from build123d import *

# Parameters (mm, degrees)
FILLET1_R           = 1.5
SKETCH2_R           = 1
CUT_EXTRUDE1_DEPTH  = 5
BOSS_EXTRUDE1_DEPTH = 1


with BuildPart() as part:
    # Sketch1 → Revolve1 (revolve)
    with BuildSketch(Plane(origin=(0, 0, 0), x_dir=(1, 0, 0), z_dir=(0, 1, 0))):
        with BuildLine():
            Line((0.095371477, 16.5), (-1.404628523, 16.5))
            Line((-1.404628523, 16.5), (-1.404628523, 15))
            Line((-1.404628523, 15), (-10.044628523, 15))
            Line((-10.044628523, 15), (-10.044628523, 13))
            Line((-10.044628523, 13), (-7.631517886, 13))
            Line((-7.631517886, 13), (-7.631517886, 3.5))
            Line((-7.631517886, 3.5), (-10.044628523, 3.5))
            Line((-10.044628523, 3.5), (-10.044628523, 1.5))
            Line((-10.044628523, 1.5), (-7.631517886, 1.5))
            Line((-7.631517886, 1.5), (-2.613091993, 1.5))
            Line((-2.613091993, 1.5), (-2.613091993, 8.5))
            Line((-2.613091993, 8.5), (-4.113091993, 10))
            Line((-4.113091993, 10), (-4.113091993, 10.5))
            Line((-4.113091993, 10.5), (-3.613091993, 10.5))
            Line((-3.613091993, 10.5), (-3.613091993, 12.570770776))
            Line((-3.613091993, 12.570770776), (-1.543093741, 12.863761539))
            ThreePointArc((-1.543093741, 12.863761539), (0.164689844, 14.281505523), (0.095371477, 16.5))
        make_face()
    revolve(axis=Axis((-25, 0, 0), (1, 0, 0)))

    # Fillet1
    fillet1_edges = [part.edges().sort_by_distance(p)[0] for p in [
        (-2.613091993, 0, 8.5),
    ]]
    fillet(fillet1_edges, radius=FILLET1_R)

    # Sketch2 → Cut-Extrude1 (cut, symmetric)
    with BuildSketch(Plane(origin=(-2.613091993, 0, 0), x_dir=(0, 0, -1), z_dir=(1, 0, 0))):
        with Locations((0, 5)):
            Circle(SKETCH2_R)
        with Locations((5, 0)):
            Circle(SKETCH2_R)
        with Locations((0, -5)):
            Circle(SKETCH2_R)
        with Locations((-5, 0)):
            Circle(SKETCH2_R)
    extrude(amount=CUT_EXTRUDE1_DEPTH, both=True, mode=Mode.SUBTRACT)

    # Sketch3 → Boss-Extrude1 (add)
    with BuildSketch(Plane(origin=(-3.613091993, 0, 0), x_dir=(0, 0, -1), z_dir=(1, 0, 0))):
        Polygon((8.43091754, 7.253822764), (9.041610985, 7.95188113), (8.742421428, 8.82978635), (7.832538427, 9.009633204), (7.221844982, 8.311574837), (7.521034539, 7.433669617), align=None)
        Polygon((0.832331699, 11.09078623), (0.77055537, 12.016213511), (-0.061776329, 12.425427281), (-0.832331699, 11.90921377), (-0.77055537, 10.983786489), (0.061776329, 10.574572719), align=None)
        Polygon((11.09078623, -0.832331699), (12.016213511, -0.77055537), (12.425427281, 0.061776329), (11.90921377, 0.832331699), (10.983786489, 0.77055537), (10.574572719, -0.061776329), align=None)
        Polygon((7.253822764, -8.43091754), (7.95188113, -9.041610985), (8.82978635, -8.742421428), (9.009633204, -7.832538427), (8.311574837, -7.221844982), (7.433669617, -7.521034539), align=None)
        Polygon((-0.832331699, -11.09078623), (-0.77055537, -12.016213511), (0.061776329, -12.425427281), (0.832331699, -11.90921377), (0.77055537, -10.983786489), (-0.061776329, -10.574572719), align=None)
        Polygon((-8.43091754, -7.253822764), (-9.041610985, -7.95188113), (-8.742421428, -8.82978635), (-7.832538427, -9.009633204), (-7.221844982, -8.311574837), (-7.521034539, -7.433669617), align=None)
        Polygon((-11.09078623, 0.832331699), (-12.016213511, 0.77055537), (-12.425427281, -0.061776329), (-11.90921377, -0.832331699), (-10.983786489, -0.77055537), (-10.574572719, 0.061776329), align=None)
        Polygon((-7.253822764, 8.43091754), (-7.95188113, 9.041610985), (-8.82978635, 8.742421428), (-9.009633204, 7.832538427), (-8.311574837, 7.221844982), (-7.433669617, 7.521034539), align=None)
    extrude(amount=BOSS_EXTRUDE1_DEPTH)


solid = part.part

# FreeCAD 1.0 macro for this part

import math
import FreeCAD as App
import Part
import Sketcher

V = App.Vector
Q = App.Units.Quantity


def edges_at(feature, points):
    """Names of the edges that pass closest to the given points."""
    edges = feature.Shape.Edges
    near = lambda p: min(range(len(edges)), key=lambda i: edges[i].distToShape(Part.Vertex(*p))[0])
    return sorted({f"Edge{near(p) + 1}" for p in points})

doc = App.newDocument("Part")
body = doc.addObject("PartDesign::Body", "Body")

sketch1 = doc.addObject("Sketcher::SketchObject", "Sketch")
body.addObject(sketch1)
sketch1.AttachmentSupport = (doc.XZ_Plane, [""])
sketch1.MapMode = "FlatFace"
sketch1.addGeometry(Part.LineSegment(V(0.1, -16.5, 0), V(-1.4, -16.5, 0)), False)
sketch1.addGeometry(Part.LineSegment(V(-1.4, -16.5, 0), V(-1.4, -15, 0)), False)
sketch1.addGeometry(Part.LineSegment(V(-1.4, -15, 0), V(-10, -15, 0)), False)
sketch1.addGeometry(Part.LineSegment(V(-10, -15, 0), V(-10, -13, 0)), False)
sketch1.addGeometry(Part.LineSegment(V(-10, -13, 0), V(-7.6, -13, 0)), False)
sketch1.addGeometry(Part.LineSegment(V(-7.6, -13, 0), V(-7.6, -3.5, 0)), False)
sketch1.addGeometry(Part.LineSegment(V(-7.6, -3.5, 0), V(-10, -3.5, 0)), False)
sketch1.addGeometry(Part.LineSegment(V(-10, -3.5, 0), V(-10, -1.5, 0)), False)
sketch1.addGeometry(Part.LineSegment(V(-10, -1.5, 0), V(-2.6, -1.5, 0)), False)
sketch1.addGeometry(Part.LineSegment(V(-2.6, -1.5, 0), V(-2.6, -8.5, 0)), False)
sketch1.addGeometry(Part.LineSegment(V(-2.6, -8.5, 0), V(-4.1, -10, 0)), False)
sketch1.addGeometry(Part.LineSegment(V(-4.1, -10, 0), V(-4.1, -10.5, 0)), False)
sketch1.addGeometry(Part.LineSegment(V(-4.1, -10.5, 0), V(-3.6, -10.5, 0)), False)
sketch1.addGeometry(Part.LineSegment(V(-3.6, -10.5, 0), V(-3.6, -12.6, 0)), False)
sketch1.addGeometry(Part.LineSegment(V(-3.6, -12.6, 0), V(-1.5, -12.9, 0)), False)
sketch1.addGeometry(Part.ArcOfCircle(Part.Circle(V(-2.1, -15.3, 0), V(0, 0, 1), 2.5), math.radians(-28), math.radians(76)), False)
sketch1.addConstraint(Sketcher.Constraint("Coincident", 0, 2, 1, 1))
sketch1.addConstraint(Sketcher.Constraint("Coincident", 1, 2, 2, 1))
sketch1.addConstraint(Sketcher.Constraint("Coincident", 2, 2, 3, 1))
sketch1.addConstraint(Sketcher.Constraint("Coincident", 3, 2, 4, 1))
sketch1.addConstraint(Sketcher.Constraint("Coincident", 4, 2, 5, 1))
sketch1.addConstraint(Sketcher.Constraint("Coincident", 5, 2, 6, 1))
sketch1.addConstraint(Sketcher.Constraint("Coincident", 6, 2, 7, 1))
sketch1.addConstraint(Sketcher.Constraint("Coincident", 7, 2, 8, 1))
sketch1.addConstraint(Sketcher.Constraint("Coincident", 8, 2, 9, 1))
sketch1.addConstraint(Sketcher.Constraint("Coincident", 9, 2, 10, 1))
sketch1.addConstraint(Sketcher.Constraint("Coincident", 10, 2, 11, 1))
sketch1.addConstraint(Sketcher.Constraint("Coincident", 11, 2, 12, 1))
sketch1.addConstraint(Sketcher.Constraint("Coincident", 12, 2, 13, 1))
sketch1.addConstraint(Sketcher.Constraint("Coincident", 13, 2, 14, 1))
sketch1.addConstraint(Sketcher.Constraint("Coincident", 14, 2, 15, 2))
sketch1.addConstraint(Sketcher.Constraint("Coincident", 15, 1, 0, 1))
sketch1.addConstraint(Sketcher.Constraint("Horizontal", 0))
sketch1.addConstraint(Sketcher.Constraint("Vertical", 1))
sketch1.addConstraint(Sketcher.Constraint("Horizontal", 2))
sketch1.addConstraint(Sketcher.Constraint("Vertical", 3))
sketch1.addConstraint(Sketcher.Constraint("Horizontal", 4))
sketch1.addConstraint(Sketcher.Constraint("Vertical", 5))
sketch1.addConstraint(Sketcher.Constraint("Horizontal", 6))
sketch1.addConstraint(Sketcher.Constraint("Vertical", 7))
sketch1.addConstraint(Sketcher.Constraint("Horizontal", 8))
sketch1.addConstraint(Sketcher.Constraint("Vertical", 9))
sketch1.addConstraint(Sketcher.Constraint("Vertical", 11))
sketch1.addConstraint(Sketcher.Constraint("Horizontal", 12))
sketch1.addConstraint(Sketcher.Constraint("Vertical", 13))
sketch1.addConstraint(Sketcher.Constraint("Vertical", 3, 2, 6, 2))
sketch1.addConstraint(Sketcher.Constraint("Equal", 0, 1))
sketch1.addConstraint(Sketcher.Constraint("Equal", 3, 7))
sketch1.addConstraint(Sketcher.Constraint("Equal", 12, 11))
sketch1.addConstraint(Sketcher.Constraint("DistanceY", 3, 1, 3, 2, 2.0))
sketch1.addConstraint(Sketcher.Constraint("DistanceY", 9, 2, 9, 1, 7.0))
sketch1.addConstraint(Sketcher.Constraint("Angle", 10, Q("-135 deg")))
sketch1.addConstraint(Sketcher.Constraint("DistanceX", 0, 2, 0, 1, 1.5))
sketch1.addConstraint(Sketcher.Constraint("DistanceX", 12, 1, 12, 2, 0.5))
sketch1.addConstraint(Sketcher.Constraint("DistanceY", 5, 1, 5, 2, 9.5))
sketch1.addConstraint(Sketcher.Constraint("DistanceY", 1, 2, -1, 1, 15.0))
sketch1.addConstraint(Sketcher.Constraint("DistanceY", 10, 2, -1, 1, 10.0))
sketch1.addConstraint(Sketcher.Constraint("DistanceX", 2, 2, 2, 1, 8.64))
sketch1.addConstraint(Sketcher.Constraint("Radius", 15, 2.527488))
sketch1.addConstraint(Sketcher.Constraint("DistanceX", 13, 2, 14, 2, 2.069998))
sketch1.addConstraint(Sketcher.Constraint("DistanceX", 4, 1, 4, 2, 2.413111))
sketch1.addConstraint(Sketcher.Constraint("DistanceY", 13, 2, 13, 1, 2.070771))
sketch1.addConstraint(Sketcher.Constraint("Distance", 14, 2.090631))
sketch1.addConstraint(Sketcher.Constraint("DistanceX", 8, 1, 8, 2, 7.431537))
sketch1.addConstraint(Sketcher.Constraint("DistanceX", 15, 3, -1, 1, 2.139669))
revolution = doc.addObject("PartDesign::Revolution", "Revolution")
body.addObject(revolution)
revolution.Profile = sketch1
revolution.ReferenceAxis = (sketch1, ["H_Axis"])
revolution.Angle = 360
doc.recompute()

fillet = doc.addObject("PartDesign::Fillet", "Fillet")
body.addObject(fillet)
fillet.Base = (revolution, edges_at(revolution, [(-2.613, 0, 8.5)]))
fillet.Radius = 1.5

sketch2 = doc.addObject("Sketcher::SketchObject", "Sketch001")
body.addObject(sketch2)
sketch2.AttachmentSupport = (doc.YZ_Plane, [""])
sketch2.MapMode = "FlatFace"
sketch2.AttachmentOffset = App.Placement(V(0, 0, -2.613092), App.Rotation())
sketch2.addGeometry(Part.Circle(V(5, 0, 0), V(0, 0, 1), 1), False)
sketch2.addGeometry(Part.Circle(V(0, -5, 0), V(0, 0, 1), 1), False)
sketch2.addGeometry(Part.Circle(V(-5, 0, 0), V(0, 0, 1), 1), False)
sketch2.addGeometry(Part.Circle(V(0, 5, 0), V(0, 0, 1), 1), False)
sketch2.addConstraint(Sketcher.Constraint("Equal", 0, 1))
sketch2.addConstraint(Sketcher.Constraint("Equal", 1, 2))
sketch2.addConstraint(Sketcher.Constraint("Equal", 2, 3))
sketch2.addConstraint(Sketcher.Constraint("Symmetric", 0, 3, 2, 3, -1, 1))
sketch2.addConstraint(Sketcher.Constraint("Symmetric", 1, 3, 3, 3, -1, 1))
sketch2.addConstraint(Sketcher.Constraint("PointOnObject", 0, 3, -1))
sketch2.addConstraint(Sketcher.Constraint("PointOnObject", 1, 3, -2))
sketch2.addConstraint(Sketcher.Constraint("Diameter", 0, 2.0))
sketch2.addConstraint(Sketcher.Constraint("DistanceX", -1, 1, 0, 3, 5.0))
sketch2.addConstraint(Sketcher.Constraint("DistanceY", 1, 3, -1, 1, 5.0))
pocket1 = doc.addObject("PartDesign::Pocket", "Pocket")
body.addObject(pocket1)
pocket1.Profile = sketch2
pocket1.Length = 10
pocket1.Midplane = True

sketch3 = doc.addObject("Sketcher::SketchObject", "Sketch002")
body.addObject(sketch3)
sketch3.AttachmentSupport = (doc.YZ_Plane, [""])
sketch3.MapMode = "FlatFace"
sketch3.AttachmentOffset = App.Placement(V(0, 0, -3.613092), App.Rotation())
sketch3.addGeometry(Part.LineSegment(V(7.3, -8.4, 0), V(8, -9, 0)), False)
sketch3.addGeometry(Part.LineSegment(V(8, -9, 0), V(8.8, -8.7, 0)), False)
sketch3.addGeometry(Part.LineSegment(V(8.8, -8.7, 0), V(9, -7.8, 0)), False)
sketch3.addGeometry(Part.LineSegment(V(9, -7.8, 0), V(8.3, -7.2, 0)), False)
sketch3.addGeometry(Part.LineSegment(V(8.3, -7.2, 0), V(7.4, -7.5, 0)), False)
sketch3.addGeometry(Part.LineSegment(V(7.4, -7.5, 0), V(7.3, -8.4, 0)), False)
sketch3.addGeometry(Part.LineSegment(V(11.1, -0.8, 0), V(12, -0.8, 0)), False)
sketch3.addGeometry(Part.LineSegment(V(12, -0.8, 0), V(12.4, 0.1, 0)), False)
sketch3.addGeometry(Part.LineSegment(V(12.4, 0.1, 0), V(11.9, 0.8, 0)), False)
sketch3.addGeometry(Part.LineSegment(V(11.9, 0.8, 0), V(11, 0.8, 0)), False)
sketch3.addGeometry(Part.LineSegment(V(11, 0.8, 0), V(10.6, -0.1, 0)), False)
sketch3.addGeometry(Part.LineSegment(V(10.6, -0.1, 0), V(11.1, -0.8, 0)), False)
sketch3.addGeometry(Part.LineSegment(V(-0.8, -11.1, 0), V(-0.8, -12, 0)), False)
sketch3.addGeometry(Part.LineSegment(V(-0.8, -12, 0), V(0.1, -12.4, 0)), False)
sketch3.addGeometry(Part.LineSegment(V(0.1, -12.4, 0), V(0.8, -11.9, 0)), False)
sketch3.addGeometry(Part.LineSegment(V(0.8, -11.9, 0), V(0.8, -11, 0)), False)
sketch3.addGeometry(Part.LineSegment(V(0.8, -11, 0), V(-0.1, -10.6, 0)), False)
sketch3.addGeometry(Part.LineSegment(V(-0.1, -10.6, 0), V(-0.8, -11.1, 0)), False)
sketch3.addGeometry(Part.LineSegment(V(-8.4, -7.3, 0), V(-9, -8, 0)), False)
sketch3.addGeometry(Part.LineSegment(V(-9, -8, 0), V(-8.7, -8.8, 0)), False)
sketch3.addGeometry(Part.LineSegment(V(-8.7, -8.8, 0), V(-7.8, -9, 0)), False)
sketch3.addGeometry(Part.LineSegment(V(-7.8, -9, 0), V(-7.2, -8.3, 0)), False)
sketch3.addGeometry(Part.LineSegment(V(-7.2, -8.3, 0), V(-7.5, -7.4, 0)), False)
sketch3.addGeometry(Part.LineSegment(V(-7.5, -7.4, 0), V(-8.4, -7.3, 0)), False)
sketch3.addGeometry(Part.LineSegment(V(-11.1, 0.8, 0), V(-12, 0.8, 0)), False)
sketch3.addGeometry(Part.LineSegment(V(-12, 0.8, 0), V(-12.4, -0.1, 0)), False)
sketch3.addGeometry(Part.LineSegment(V(-12.4, -0.1, 0), V(-11.9, -0.8, 0)), False)
sketch3.addGeometry(Part.LineSegment(V(-11.9, -0.8, 0), V(-11, -0.8, 0)), False)
sketch3.addGeometry(Part.LineSegment(V(-11, -0.8, 0), V(-10.6, 0.1, 0)), False)
sketch3.addGeometry(Part.LineSegment(V(-10.6, 0.1, 0), V(-11.1, 0.8, 0)), False)
sketch3.addGeometry(Part.LineSegment(V(-7.3, 8.4, 0), V(-8, 9, 0)), False)
sketch3.addGeometry(Part.LineSegment(V(-8, 9, 0), V(-8.8, 8.7, 0)), False)
sketch3.addGeometry(Part.LineSegment(V(-8.8, 8.7, 0), V(-9, 7.8, 0)), False)
sketch3.addGeometry(Part.LineSegment(V(-9, 7.8, 0), V(-8.3, 7.2, 0)), False)
sketch3.addGeometry(Part.LineSegment(V(-8.3, 7.2, 0), V(-7.4, 7.5, 0)), False)
sketch3.addGeometry(Part.LineSegment(V(-7.4, 7.5, 0), V(-7.3, 8.4, 0)), False)
sketch3.addGeometry(Part.LineSegment(V(0.8, 11.1, 0), V(0.8, 12, 0)), False)
sketch3.addGeometry(Part.LineSegment(V(0.8, 12, 0), V(-0.1, 12.4, 0)), False)
sketch3.addGeometry(Part.LineSegment(V(-0.1, 12.4, 0), V(-0.8, 11.9, 0)), False)
sketch3.addGeometry(Part.LineSegment(V(-0.8, 11.9, 0), V(-0.8, 11, 0)), False)
sketch3.addGeometry(Part.LineSegment(V(-0.8, 11, 0), V(0.1, 10.6, 0)), False)
sketch3.addGeometry(Part.LineSegment(V(0.1, 10.6, 0), V(0.8, 11.1, 0)), False)
sketch3.addGeometry(Part.LineSegment(V(8.4, 7.3, 0), V(9, 8, 0)), False)
sketch3.addGeometry(Part.LineSegment(V(9, 8, 0), V(8.7, 8.8, 0)), False)
sketch3.addGeometry(Part.LineSegment(V(8.7, 8.8, 0), V(7.8, 9, 0)), False)
sketch3.addGeometry(Part.LineSegment(V(7.8, 9, 0), V(7.2, 8.3, 0)), False)
sketch3.addGeometry(Part.LineSegment(V(7.2, 8.3, 0), V(7.5, 7.4, 0)), False)
sketch3.addGeometry(Part.LineSegment(V(7.5, 7.4, 0), V(8.4, 7.3, 0)), False)
sketch3.addConstraint(Sketcher.Constraint("Coincident", 0, 2, 1, 1))
sketch3.addConstraint(Sketcher.Constraint("Coincident", 1, 2, 2, 1))
sketch3.addConstraint(Sketcher.Constraint("Coincident", 2, 2, 3, 1))
sketch3.addConstraint(Sketcher.Constraint("Coincident", 3, 2, 4, 1))
sketch3.addConstraint(Sketcher.Constraint("Coincident", 4, 2, 5, 1))
sketch3.addConstraint(Sketcher.Constraint("Coincident", 5, 2, 0, 1))
sketch3.addConstraint(Sketcher.Constraint("Coincident", 6, 2, 7, 1))
sketch3.addConstraint(Sketcher.Constraint("Coincident", 7, 2, 8, 1))
sketch3.addConstraint(Sketcher.Constraint("Coincident", 8, 2, 9, 1))
sketch3.addConstraint(Sketcher.Constraint("Coincident", 9, 2, 10, 1))
sketch3.addConstraint(Sketcher.Constraint("Coincident", 10, 2, 11, 1))
sketch3.addConstraint(Sketcher.Constraint("Coincident", 11, 2, 6, 1))
sketch3.addConstraint(Sketcher.Constraint("Coincident", 12, 2, 13, 1))
sketch3.addConstraint(Sketcher.Constraint("Coincident", 13, 2, 14, 1))
sketch3.addConstraint(Sketcher.Constraint("Coincident", 14, 2, 15, 1))
sketch3.addConstraint(Sketcher.Constraint("Coincident", 15, 2, 16, 1))
sketch3.addConstraint(Sketcher.Constraint("Coincident", 16, 2, 17, 1))
sketch3.addConstraint(Sketcher.Constraint("Coincident", 17, 2, 12, 1))
sketch3.addConstraint(Sketcher.Constraint("Coincident", 18, 2, 19, 1))
sketch3.addConstraint(Sketcher.Constraint("Coincident", 19, 2, 20, 1))
sketch3.addConstraint(Sketcher.Constraint("Coincident", 20, 2, 21, 1))
sketch3.addConstraint(Sketcher.Constraint("Coincident", 21, 2, 22, 1))
sketch3.addConstraint(Sketcher.Constraint("Coincident", 22, 2, 23, 1))
sketch3.addConstraint(Sketcher.Constraint("Coincident", 23, 2, 18, 1))
sketch3.addConstraint(Sketcher.Constraint("Coincident", 24, 2, 25, 1))
sketch3.addConstraint(Sketcher.Constraint("Coincident", 25, 2, 26, 1))
sketch3.addConstraint(Sketcher.Constraint("Coincident", 26, 2, 27, 1))
sketch3.addConstraint(Sketcher.Constraint("Coincident", 27, 2, 28, 1))
sketch3.addConstraint(Sketcher.Constraint("Coincident", 28, 2, 29, 1))
sketch3.addConstraint(Sketcher.Constraint("Coincident", 29, 2, 24, 1))
sketch3.addConstraint(Sketcher.Constraint("Coincident", 30, 2, 31, 1))
sketch3.addConstraint(Sketcher.Constraint("Coincident", 31, 2, 32, 1))
sketch3.addConstraint(Sketcher.Constraint("Coincident", 32, 2, 33, 1))
sketch3.addConstraint(Sketcher.Constraint("Coincident", 33, 2, 34, 1))
sketch3.addConstraint(Sketcher.Constraint("Coincident", 34, 2, 35, 1))
sketch3.addConstraint(Sketcher.Constraint("Coincident", 35, 2, 30, 1))
sketch3.addConstraint(Sketcher.Constraint("Coincident", 36, 2, 37, 1))
sketch3.addConstraint(Sketcher.Constraint("Coincident", 37, 2, 38, 1))
sketch3.addConstraint(Sketcher.Constraint("Coincident", 38, 2, 39, 1))
sketch3.addConstraint(Sketcher.Constraint("Coincident", 39, 2, 40, 1))
sketch3.addConstraint(Sketcher.Constraint("Coincident", 40, 2, 41, 1))
sketch3.addConstraint(Sketcher.Constraint("Coincident", 41, 2, 36, 1))
sketch3.addConstraint(Sketcher.Constraint("Coincident", 42, 2, 43, 1))
sketch3.addConstraint(Sketcher.Constraint("Coincident", 43, 2, 44, 1))
sketch3.addConstraint(Sketcher.Constraint("Coincident", 44, 2, 45, 1))
sketch3.addConstraint(Sketcher.Constraint("Coincident", 45, 2, 46, 1))
sketch3.addConstraint(Sketcher.Constraint("Coincident", 46, 2, 47, 1))
sketch3.addConstraint(Sketcher.Constraint("Coincident", 47, 2, 42, 1))
sketch3.addConstraint(Sketcher.Constraint("Symmetric", 6, 2, 24, 2, -1, 1))
sketch3.addConstraint(Sketcher.Constraint("Symmetric", 7, 2, 25, 2, -1, 1))
sketch3.addConstraint(Sketcher.Constraint("Symmetric", 8, 2, 26, 2, -1, 1))
sketch3.addConstraint(Sketcher.Constraint("Symmetric", 9, 2, 27, 2, -1, 1))
sketch3.addConstraint(Sketcher.Constraint("Symmetric", 10, 2, 28, 2, -1, 1))
sketch3.addConstraint(Sketcher.Constraint("Symmetric", 11, 2, 29, 2, -1, 1))
sketch3.addConstraint(Sketcher.Constraint("Symmetric", 0, 2, 30, 2, -1, 1))
sketch3.addConstraint(Sketcher.Constraint("Symmetric", 1, 2, 31, 2, -1, 1))
sketch3.addConstraint(Sketcher.Constraint("Symmetric", 2, 2, 32, 2, -1, 1))
sketch3.addConstraint(Sketcher.Constraint("Symmetric", 3, 2, 33, 2, -1, 1))
sketch3.addConstraint(Sketcher.Constraint("Symmetric", 4, 2, 34, 2, -1, 1))
sketch3.addConstraint(Sketcher.Constraint("Symmetric", 5, 2, 35, 2, -1, 1))
sketch3.addConstraint(Sketcher.Constraint("Symmetric", 12, 2, 36, 2, -1, 1))
sketch3.addConstraint(Sketcher.Constraint("Symmetric", 13, 2, 37, 2, -1, 1))
sketch3.addConstraint(Sketcher.Constraint("Symmetric", 14, 2, 38, 2, -1, 1))
sketch3.addConstraint(Sketcher.Constraint("Symmetric", 15, 2, 39, 2, -1, 1))
sketch3.addConstraint(Sketcher.Constraint("Symmetric", 16, 2, 40, 2, -1, 1))
sketch3.addConstraint(Sketcher.Constraint("Symmetric", 17, 2, 41, 2, -1, 1))
sketch3.addConstraint(Sketcher.Constraint("Symmetric", 18, 2, 42, 2, -1, 1))
sketch3.addConstraint(Sketcher.Constraint("Symmetric", 19, 2, 43, 2, -1, 1))
sketch3.addConstraint(Sketcher.Constraint("Symmetric", 20, 2, 44, 2, -1, 1))
sketch3.addConstraint(Sketcher.Constraint("Symmetric", 21, 2, 45, 2, -1, 1))
sketch3.addConstraint(Sketcher.Constraint("Symmetric", 22, 2, 46, 2, -1, 1))
sketch3.addConstraint(Sketcher.Constraint("Symmetric", 23, 2, 47, 2, -1, 1))
sketch3.addConstraint(Sketcher.Constraint("Parallel", 0, 3))
sketch3.addConstraint(Sketcher.Constraint("Parallel", 1, 4))
sketch3.addConstraint(Sketcher.Constraint("Parallel", 2, 5))
sketch3.addConstraint(Sketcher.Constraint("Parallel", 6, 9))
sketch3.addConstraint(Sketcher.Constraint("Parallel", 7, 10))
sketch3.addConstraint(Sketcher.Constraint("Parallel", 8, 11))
sketch3.addConstraint(Sketcher.Constraint("Perpendicular", 9, 12))
sketch3.addConstraint(Sketcher.Constraint("Perpendicular", 10, 13))
sketch3.addConstraint(Sketcher.Constraint("Perpendicular", 11, 14))
sketch3.addConstraint(Sketcher.Constraint("Parallel", 12, 15))
sketch3.addConstraint(Sketcher.Constraint("Parallel", 13, 16))
sketch3.addConstraint(Sketcher.Constraint("Parallel", 14, 17))
sketch3.addConstraint(Sketcher.Constraint("Perpendicular", 3, 18))
sketch3.addConstraint(Sketcher.Constraint("Perpendicular", 4, 19))
sketch3.addConstraint(Sketcher.Constraint("Perpendicular", 5, 20))
sketch3.addConstraint(Sketcher.Constraint("Parallel", 18, 21))
sketch3.addConstraint(Sketcher.Constraint("Parallel", 19, 22))
sketch3.addConstraint(Sketcher.Constraint("Parallel", 20, 23))
sketch3.addConstraint(Sketcher.Constraint("Horizontal", 9, 2, 24, 2))
sketch3.addConstraint(Sketcher.Constraint("Horizontal", 10, 2, 25, 2))
sketch3.addConstraint(Sketcher.Constraint("Vertical", 15, 2, 36, 2))
sketch3.addConstraint(Sketcher.Constraint("Vertical", 16, 2, 37, 2))
sketch3.addConstraint(Sketcher.Constraint("Equal", 0, 1))
sketch3.addConstraint(Sketcher.Constraint("Equal", 1, 2))
sketch3.addConstraint(Sketcher.Constraint("Equal", 2, 3))
sketch3.addConstraint(Sketcher.Constraint("Equal", 5, 6))
sketch3.addConstraint(Sketcher.Constraint("Equal", 6, 7))
sketch3.addConstraint(Sketcher.Constraint("Equal", 7, 8))
sketch3.addConstraint(Sketcher.Constraint("Equal", 11, 12))
sketch3.addConstraint(Sketcher.Constraint("Equal", 12, 13))
sketch3.addConstraint(Sketcher.Constraint("Equal", 13, 14))
sketch3.addConstraint(Sketcher.Constraint("Equal", 17, 18))
sketch3.addConstraint(Sketcher.Constraint("Equal", 18, 19))
sketch3.addConstraint(Sketcher.Constraint("Equal", 19, 20))
sketch3.addConstraint(Sketcher.Constraint("Equal", 20, 21))
sketch3.addConstraint(Sketcher.Constraint("DistanceX", 8, 2, 6, 2, 0.107))
sketch3.addConstraint(Sketcher.Constraint("DistanceY", 17, 2, 19, 2, 2.261))
sketch3.addConstraint(Sketcher.Constraint("DistanceX", 29, 2, 31, 2, 2.261))
sketch3.addConstraint(Sketcher.Constraint("DistanceY", 3, 2, 9, 2, 7.9924))
sketch3.addConstraint(Sketcher.Constraint("DistanceX", 16, 2, 5, 2, 7.315599))
sketch3.addConstraint(Sketcher.Constraint("DistanceY", 23, 2, 28, 2, 7.315599))
sketch3.addConstraint(Sketcher.Constraint("DistanceX", -1, 1, 0, 2, 7.951881))
sketch3.addConstraint(Sketcher.Constraint("DistanceY", 0, 2, -1, 1, 9.041611))
sketch3.addConstraint(Sketcher.Constraint("DistanceY", 1, 2, -1, 1, 8.742421))
sketch3.addConstraint(Sketcher.Constraint("DistanceY", 2, 2, -1, 1, 7.832538))
sketch3.addConstraint(Sketcher.Constraint("DistanceX", -1, 1, 4, 2, 7.43367))
sketch3.addConstraint(Sketcher.Constraint("DistanceY", -1, 1, 8, 2, 0.832332))
sketch3.addConstraint(Sketcher.Constraint("DistanceX", 18, 2, -1, 1, 9.041611))
pad1 = doc.addObject("PartDesign::Pad", "Pad")
body.addObject(pad1)
pad1.Profile = sketch3
pad1.Length = 1

doc.recompute()
